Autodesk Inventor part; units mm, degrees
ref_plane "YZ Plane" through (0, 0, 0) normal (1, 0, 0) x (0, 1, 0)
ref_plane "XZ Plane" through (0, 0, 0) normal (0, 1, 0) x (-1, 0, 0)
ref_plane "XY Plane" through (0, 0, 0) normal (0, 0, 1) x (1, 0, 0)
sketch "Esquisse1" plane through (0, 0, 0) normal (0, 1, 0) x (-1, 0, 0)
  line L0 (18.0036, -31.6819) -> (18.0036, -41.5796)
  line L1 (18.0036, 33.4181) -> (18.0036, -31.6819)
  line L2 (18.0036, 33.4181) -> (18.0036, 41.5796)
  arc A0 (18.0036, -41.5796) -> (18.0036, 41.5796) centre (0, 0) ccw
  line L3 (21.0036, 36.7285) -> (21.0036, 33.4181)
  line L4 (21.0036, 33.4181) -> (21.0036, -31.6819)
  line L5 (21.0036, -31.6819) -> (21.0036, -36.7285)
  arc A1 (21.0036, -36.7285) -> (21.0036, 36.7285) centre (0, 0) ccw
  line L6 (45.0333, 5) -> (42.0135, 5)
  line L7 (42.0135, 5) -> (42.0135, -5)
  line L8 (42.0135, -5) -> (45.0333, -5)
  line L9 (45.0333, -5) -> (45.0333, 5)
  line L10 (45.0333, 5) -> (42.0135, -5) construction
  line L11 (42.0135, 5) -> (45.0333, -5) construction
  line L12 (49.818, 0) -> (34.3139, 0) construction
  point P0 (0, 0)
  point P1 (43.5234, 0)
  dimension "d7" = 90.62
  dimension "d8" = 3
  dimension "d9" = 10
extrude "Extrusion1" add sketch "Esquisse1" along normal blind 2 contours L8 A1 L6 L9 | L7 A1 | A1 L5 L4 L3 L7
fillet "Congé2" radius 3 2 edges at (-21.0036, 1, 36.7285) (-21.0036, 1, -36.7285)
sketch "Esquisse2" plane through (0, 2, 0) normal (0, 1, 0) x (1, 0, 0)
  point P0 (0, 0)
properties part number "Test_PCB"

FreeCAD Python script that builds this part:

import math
import FreeCAD as App
import Part
import Sketcher

V = App.Vector
Q = App.Units.Quantity


def edges_at(feature, points):
    """Names of the edges that pass closest to the given points."""
    edges = feature.Shape.Edges
    near = lambda p: min(range(len(edges)), key=lambda i: edges[i].distToShape(Part.Vertex(*p))[0])
    return sorted({f"Edge{near(p) + 1}" for p in points})

doc = App.newDocument("Part")
body = doc.addObject("PartDesign::Body", "Body")

sketch1 = doc.addObject("Sketcher::SketchObject", "Sketch")
body.addObject(sketch1)
sketch1.AttachmentSupport = (doc.XZ_Plane, [""])
sketch1.MapMode = "FlatFace"
sketch1.addGeometry([
    Part.LineSegment(V(-42, -5, 0), V(-45, -5, 0)),
    Part.LineSegment(V(-45, -5, 0), V(-45, 5, 0)),
    Part.LineSegment(V(-45, 5, 0), V(-42, 5, 0)),
    Part.ArcOfCircle(Part.Circle(V(0, 0, 0), V(0, 0, 1), 42.3), math.radians(120), math.radians(173)),
    Part.LineSegment(V(-21, 36.7, 0), V(-21, -36.7, 0)),
    Part.ArcOfCircle(Part.Circle(V(0, 0, 0), V(0, 0, 1), 42.3), math.radians(-173), math.radians(-120)),
], False)
sketch1.addConstraint([
    Sketcher.Constraint("Coincident", 0, 2, 1, 1),
    Sketcher.Constraint("Coincident", 1, 2, 2, 1),
    Sketcher.Constraint("Coincident", 2, 2, 3, 2),
    Sketcher.Constraint("Coincident", 3, 1, 4, 1),
    Sketcher.Constraint("Coincident", 4, 2, 5, 2),
    Sketcher.Constraint("Coincident", 5, 1, 0, 1),
    Sketcher.Constraint("Horizontal", 0),
    Sketcher.Constraint("Vertical", 1),
    Sketcher.Constraint("Horizontal", 2),
    Sketcher.Constraint("Vertical", 4),
    Sketcher.Constraint("Coincident", 3, 3, -1, 1),
    Sketcher.Constraint("Coincident", 5, 3, -1, 1),
    Sketcher.Constraint("Equal", 3, 5),
    Sketcher.Constraint("Vertical", 2, 2, 5, 1),
    Sketcher.Constraint("DistanceY", 1, 1, 1, 2, Q("10 mm")),
    Sketcher.Constraint("Radius", 3, Q("42.31 mm")),
    Sketcher.Constraint("DistanceY", 4, 2, 4, 1, Q("73.457 mm")),
    Sketcher.Constraint("DistanceX", 0, 2, 0, 1, Q("3.0198 mm")),
])
pad1 = doc.addObject("PartDesign::Pad", "Pad")
body.addObject(pad1)
pad1.Profile = sketch1
pad1.Length = 2
pad1.Reversed = True
doc.recompute()

fillet = doc.addObject("PartDesign::Fillet", "Fillet")
body.addObject(fillet)
fillet.Base = (pad1, edges_at(pad1, [(-21.004, 1, 36.728), (-21.004, 1, -36.728)]))
fillet.Radius = 3

doc.recompute()
